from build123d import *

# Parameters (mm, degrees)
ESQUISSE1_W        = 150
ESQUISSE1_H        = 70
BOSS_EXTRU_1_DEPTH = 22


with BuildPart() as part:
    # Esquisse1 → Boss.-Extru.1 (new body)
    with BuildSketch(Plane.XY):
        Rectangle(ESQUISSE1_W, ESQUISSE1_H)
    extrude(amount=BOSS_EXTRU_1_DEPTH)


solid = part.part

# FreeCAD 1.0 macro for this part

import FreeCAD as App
import Part
import Sketcher
from FreeCAD import Vector
Q = App.Units.Quantity


def add_polygon(sketch, points):
    """Adds a closed chain of lines whose ends are joined by coincident constraints."""
    first, n = sketch.GeometryCount, len(points)
    for a, b in zip(points, points[1:] + points[:1]):
        sketch.addGeometry(Part.LineSegment(App.Vector(*a, 0), App.Vector(*b, 0)), False)
    for i in range(n):
        sketch.addConstraint(Sketcher.Constraint("Coincident", first + i, 2, first + (i + 1) % n, 1))

doc = App.newDocument("Part")
params = doc.addObject("Spreadsheet::Sheet", "Params")
for row, (alias, value) in enumerate([
    ("sketch1_width", "150 mm"),
    ("sketch1_height", "70 mm"),
    ("pad1_length", "22 mm"),
], start=1):
    params.set(f"A{row}", alias)
    params.set(f"B{row}", "=" + value)
    params.setAlias(f"B{row}", alias)

body = doc.addObject("PartDesign::Body", "Body")

sketch1 = body.newObject("Sketcher::SketchObject", "Sketch")
sketch1.AttachmentSupport = (doc.getObject("XY_Plane"), [""])
sketch1.MapMode = "FlatFace"
add_polygon(sketch1, [(-75, 35), (-75, -35), (75, -35), (75, 35)])
sketch1.addConstraint([
    Sketcher.Constraint("Vertical", 0),
    Sketcher.Constraint("Horizontal", 1),
    Sketcher.Constraint("Vertical", 2),
    Sketcher.Constraint("Horizontal", 3),
    Sketcher.Constraint("Symmetric", 0, 2, 2, 2, -1, 1),
    Sketcher.Constraint("DistanceX", 1, 1, 1, 2, Q("150 mm")),
    Sketcher.Constraint("DistanceY", 0, 2, 0, 1, Q("70 mm")),
])
sketch1.setExpression("Constraints[9]", "Params.sketch1_width")
sketch1.setExpression("Constraints[10]", "Params.sketch1_height")
pad1 = body.newObject("PartDesign::Pad", "Pad")
pad1.Profile = sketch1
pad1.setExpression("Length", "Params.pad1_length")

doc.recompute()
